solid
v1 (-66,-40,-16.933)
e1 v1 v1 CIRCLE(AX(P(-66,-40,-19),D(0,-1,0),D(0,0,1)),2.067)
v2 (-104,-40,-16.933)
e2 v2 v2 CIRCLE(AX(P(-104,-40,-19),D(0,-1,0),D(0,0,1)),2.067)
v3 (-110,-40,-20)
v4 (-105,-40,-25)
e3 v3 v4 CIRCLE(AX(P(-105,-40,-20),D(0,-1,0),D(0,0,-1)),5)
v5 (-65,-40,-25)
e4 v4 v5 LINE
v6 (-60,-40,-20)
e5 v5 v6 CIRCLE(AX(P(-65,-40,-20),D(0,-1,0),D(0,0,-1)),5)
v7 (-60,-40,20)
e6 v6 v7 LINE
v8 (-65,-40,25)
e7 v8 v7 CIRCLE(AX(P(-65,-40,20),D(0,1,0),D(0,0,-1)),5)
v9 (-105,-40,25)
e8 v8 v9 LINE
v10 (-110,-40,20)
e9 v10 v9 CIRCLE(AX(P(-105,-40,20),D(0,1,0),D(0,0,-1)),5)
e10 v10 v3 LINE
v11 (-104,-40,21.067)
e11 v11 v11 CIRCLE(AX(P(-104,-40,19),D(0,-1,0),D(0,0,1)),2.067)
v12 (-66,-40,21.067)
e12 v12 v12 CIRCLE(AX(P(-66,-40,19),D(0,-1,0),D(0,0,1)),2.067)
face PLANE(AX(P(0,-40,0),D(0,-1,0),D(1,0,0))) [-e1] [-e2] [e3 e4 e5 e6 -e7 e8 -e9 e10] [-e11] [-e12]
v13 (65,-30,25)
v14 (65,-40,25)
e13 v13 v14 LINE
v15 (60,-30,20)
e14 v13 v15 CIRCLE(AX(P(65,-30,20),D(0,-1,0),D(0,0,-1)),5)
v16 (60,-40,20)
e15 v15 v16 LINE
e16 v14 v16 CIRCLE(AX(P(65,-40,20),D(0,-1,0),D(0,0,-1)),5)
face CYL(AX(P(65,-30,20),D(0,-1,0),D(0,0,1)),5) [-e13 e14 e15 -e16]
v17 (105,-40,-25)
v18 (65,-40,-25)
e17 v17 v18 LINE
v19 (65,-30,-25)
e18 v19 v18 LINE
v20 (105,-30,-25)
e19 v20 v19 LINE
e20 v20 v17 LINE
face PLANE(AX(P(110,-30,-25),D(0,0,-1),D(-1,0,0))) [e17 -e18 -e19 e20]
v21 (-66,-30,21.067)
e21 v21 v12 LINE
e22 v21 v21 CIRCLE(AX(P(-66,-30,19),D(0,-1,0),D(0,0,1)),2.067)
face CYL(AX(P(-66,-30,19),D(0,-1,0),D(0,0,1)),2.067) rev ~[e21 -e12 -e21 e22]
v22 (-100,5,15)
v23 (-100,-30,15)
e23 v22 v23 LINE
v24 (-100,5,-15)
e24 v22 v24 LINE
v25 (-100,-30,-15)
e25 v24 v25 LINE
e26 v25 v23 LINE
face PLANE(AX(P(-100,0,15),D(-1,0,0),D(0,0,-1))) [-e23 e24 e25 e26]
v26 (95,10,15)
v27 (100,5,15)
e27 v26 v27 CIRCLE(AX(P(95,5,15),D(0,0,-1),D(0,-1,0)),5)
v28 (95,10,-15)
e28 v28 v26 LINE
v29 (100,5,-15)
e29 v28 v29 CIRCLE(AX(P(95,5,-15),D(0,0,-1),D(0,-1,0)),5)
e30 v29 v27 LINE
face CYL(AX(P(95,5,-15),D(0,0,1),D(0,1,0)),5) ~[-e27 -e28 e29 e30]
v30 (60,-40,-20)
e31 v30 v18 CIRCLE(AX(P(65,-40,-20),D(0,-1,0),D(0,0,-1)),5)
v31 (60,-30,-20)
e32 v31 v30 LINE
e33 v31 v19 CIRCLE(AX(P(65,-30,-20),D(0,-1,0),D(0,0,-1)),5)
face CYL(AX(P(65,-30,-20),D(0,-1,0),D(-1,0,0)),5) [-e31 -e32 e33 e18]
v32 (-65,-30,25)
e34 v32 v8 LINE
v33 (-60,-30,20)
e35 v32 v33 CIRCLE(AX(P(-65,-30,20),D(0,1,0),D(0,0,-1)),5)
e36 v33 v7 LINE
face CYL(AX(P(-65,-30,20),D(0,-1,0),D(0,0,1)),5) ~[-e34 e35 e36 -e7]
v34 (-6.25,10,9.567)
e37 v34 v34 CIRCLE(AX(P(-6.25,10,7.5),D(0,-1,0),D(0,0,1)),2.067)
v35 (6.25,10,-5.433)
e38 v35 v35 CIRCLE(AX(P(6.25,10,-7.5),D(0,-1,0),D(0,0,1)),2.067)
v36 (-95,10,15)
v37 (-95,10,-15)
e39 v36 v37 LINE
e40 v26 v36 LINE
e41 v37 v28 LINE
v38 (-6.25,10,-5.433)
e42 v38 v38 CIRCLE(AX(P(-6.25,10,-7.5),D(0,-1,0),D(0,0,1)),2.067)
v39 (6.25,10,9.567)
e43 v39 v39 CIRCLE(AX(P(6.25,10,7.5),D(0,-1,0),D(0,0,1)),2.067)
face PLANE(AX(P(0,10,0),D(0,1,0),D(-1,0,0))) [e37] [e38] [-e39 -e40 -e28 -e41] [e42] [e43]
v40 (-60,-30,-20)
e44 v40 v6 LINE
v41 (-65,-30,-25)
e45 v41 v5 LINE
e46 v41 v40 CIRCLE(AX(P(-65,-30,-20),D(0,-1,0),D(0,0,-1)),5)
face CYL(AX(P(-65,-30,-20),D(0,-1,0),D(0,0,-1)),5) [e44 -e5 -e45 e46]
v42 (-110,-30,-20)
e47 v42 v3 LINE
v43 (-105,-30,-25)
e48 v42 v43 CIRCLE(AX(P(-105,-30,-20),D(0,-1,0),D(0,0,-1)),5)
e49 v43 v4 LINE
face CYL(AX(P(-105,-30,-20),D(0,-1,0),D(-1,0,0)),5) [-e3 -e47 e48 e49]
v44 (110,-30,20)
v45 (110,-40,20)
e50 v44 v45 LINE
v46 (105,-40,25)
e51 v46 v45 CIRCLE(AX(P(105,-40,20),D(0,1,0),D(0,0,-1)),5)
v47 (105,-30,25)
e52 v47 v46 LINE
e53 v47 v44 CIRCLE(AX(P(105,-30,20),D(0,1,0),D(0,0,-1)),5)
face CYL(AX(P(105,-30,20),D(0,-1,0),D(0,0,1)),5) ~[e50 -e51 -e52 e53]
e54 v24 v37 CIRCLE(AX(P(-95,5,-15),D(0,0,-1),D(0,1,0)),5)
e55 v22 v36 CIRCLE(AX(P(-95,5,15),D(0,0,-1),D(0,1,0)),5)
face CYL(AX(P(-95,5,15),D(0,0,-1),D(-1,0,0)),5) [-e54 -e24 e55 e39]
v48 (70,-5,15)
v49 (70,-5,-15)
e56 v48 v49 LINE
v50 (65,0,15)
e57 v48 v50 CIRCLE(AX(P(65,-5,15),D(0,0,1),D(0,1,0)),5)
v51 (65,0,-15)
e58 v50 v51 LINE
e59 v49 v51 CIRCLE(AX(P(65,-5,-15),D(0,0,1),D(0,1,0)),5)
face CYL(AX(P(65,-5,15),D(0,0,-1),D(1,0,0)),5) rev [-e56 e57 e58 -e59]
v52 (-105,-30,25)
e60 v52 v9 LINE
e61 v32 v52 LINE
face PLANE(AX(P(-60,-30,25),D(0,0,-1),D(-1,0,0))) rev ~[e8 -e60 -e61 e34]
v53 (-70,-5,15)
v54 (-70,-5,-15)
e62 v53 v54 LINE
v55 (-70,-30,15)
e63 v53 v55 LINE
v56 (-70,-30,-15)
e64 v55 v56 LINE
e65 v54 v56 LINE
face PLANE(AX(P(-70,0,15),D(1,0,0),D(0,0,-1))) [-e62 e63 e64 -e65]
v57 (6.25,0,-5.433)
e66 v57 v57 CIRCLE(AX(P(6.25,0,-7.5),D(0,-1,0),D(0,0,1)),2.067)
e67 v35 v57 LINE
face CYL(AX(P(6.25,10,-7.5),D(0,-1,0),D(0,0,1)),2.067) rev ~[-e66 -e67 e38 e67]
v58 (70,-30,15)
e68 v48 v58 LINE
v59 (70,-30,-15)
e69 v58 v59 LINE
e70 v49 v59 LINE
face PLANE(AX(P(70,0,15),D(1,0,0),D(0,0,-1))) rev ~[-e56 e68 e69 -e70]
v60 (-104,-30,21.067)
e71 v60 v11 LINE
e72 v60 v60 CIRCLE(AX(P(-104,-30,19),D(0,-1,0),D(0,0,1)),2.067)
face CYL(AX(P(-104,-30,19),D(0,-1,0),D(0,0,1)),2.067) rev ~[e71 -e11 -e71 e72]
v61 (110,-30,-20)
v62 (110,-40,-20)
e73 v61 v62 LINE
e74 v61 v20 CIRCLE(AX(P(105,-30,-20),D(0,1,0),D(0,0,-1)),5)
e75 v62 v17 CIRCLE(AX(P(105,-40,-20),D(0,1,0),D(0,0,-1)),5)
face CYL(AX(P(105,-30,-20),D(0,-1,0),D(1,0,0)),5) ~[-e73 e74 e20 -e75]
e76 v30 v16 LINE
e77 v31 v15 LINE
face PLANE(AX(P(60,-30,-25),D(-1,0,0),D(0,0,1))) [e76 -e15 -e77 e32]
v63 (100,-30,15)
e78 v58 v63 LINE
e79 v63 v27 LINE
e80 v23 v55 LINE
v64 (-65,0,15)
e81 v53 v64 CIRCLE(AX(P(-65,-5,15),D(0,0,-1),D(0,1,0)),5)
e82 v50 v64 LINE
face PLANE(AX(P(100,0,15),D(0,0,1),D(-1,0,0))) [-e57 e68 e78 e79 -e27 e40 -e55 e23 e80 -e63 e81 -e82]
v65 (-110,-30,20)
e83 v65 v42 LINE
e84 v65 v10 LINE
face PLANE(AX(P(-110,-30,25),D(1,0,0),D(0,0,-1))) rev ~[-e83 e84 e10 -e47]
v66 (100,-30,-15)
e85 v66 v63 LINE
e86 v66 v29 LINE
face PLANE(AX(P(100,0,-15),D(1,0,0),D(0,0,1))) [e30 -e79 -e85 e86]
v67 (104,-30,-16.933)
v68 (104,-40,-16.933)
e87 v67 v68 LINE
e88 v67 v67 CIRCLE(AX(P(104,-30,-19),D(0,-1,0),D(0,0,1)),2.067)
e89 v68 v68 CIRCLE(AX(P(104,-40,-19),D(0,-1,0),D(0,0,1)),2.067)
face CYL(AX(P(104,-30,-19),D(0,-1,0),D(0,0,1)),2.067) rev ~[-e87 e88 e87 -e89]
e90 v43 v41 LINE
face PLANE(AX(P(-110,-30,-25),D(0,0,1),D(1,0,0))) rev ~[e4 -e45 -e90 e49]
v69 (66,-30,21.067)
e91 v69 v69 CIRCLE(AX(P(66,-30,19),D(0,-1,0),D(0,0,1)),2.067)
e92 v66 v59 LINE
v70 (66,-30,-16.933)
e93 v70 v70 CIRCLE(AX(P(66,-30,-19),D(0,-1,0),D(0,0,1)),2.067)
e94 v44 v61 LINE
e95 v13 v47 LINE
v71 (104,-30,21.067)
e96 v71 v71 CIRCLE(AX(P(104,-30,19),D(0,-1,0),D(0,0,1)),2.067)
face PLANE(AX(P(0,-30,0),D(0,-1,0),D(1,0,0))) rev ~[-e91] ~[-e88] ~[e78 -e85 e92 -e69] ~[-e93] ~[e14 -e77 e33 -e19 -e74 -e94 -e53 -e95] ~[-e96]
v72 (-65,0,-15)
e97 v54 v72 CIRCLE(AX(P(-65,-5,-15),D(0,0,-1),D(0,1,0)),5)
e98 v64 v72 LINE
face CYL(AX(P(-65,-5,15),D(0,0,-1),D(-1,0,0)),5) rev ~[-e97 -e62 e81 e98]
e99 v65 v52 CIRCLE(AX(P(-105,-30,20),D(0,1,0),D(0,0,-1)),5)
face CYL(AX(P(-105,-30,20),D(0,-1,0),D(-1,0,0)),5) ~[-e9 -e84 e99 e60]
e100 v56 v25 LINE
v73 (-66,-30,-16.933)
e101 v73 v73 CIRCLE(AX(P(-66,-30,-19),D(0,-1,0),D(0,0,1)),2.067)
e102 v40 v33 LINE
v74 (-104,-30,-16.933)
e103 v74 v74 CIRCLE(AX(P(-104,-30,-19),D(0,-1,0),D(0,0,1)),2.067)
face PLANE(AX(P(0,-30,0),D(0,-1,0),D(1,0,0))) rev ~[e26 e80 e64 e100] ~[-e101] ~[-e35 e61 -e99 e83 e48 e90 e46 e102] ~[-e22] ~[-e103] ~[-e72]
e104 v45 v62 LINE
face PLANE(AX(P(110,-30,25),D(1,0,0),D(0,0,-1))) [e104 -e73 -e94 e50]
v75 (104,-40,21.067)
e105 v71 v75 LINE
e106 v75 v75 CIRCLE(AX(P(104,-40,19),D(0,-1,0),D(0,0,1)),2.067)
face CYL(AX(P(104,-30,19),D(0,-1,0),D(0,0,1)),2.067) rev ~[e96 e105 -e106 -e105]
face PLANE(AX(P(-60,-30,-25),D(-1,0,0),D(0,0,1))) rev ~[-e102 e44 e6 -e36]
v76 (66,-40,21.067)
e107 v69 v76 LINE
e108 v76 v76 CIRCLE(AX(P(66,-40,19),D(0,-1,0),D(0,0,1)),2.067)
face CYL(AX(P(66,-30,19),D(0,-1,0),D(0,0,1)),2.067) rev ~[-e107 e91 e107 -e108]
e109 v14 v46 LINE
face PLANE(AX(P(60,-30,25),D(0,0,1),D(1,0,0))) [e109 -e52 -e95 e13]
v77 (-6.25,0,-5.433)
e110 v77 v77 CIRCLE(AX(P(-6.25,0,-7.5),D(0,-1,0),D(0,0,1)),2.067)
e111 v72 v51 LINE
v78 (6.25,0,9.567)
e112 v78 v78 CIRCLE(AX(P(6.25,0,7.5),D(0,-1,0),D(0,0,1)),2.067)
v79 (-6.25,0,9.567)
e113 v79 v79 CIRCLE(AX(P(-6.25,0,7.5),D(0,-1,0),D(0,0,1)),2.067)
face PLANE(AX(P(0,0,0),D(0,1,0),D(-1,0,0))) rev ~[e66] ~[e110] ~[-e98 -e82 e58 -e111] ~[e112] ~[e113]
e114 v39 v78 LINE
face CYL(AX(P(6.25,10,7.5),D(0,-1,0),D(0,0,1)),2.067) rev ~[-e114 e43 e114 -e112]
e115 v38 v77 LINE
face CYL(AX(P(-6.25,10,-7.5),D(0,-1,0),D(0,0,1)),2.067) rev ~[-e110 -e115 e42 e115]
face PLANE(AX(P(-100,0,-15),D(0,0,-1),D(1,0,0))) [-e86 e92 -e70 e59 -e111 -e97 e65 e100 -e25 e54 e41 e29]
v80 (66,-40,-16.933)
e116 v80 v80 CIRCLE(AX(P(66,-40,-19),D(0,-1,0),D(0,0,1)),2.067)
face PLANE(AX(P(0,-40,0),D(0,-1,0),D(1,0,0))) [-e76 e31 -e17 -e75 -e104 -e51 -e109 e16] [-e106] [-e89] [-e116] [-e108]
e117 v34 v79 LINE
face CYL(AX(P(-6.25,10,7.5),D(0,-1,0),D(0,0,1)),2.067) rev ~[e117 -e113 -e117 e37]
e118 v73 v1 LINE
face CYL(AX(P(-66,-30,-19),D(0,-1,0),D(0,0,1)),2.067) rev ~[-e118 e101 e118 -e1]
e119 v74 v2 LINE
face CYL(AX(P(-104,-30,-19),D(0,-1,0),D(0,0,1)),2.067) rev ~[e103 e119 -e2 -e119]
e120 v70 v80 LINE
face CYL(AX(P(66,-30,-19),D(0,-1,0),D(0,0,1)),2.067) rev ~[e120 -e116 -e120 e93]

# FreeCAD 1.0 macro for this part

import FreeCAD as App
import Part
import Sketcher

V = App.Vector
Q = App.Units.Quantity


def edges_at(feature, points):
    """Names of the edges that pass closest to the given points."""
    edges = feature.Shape.Edges
    near = lambda p: min(range(len(edges)), key=lambda i: edges[i].distToShape(Part.Vertex(*p))[0])
    return sorted({f"Edge{near(p) + 1}" for p in points})

doc = App.newDocument("Part")
body = doc.addObject("PartDesign::Body", "Body")

sketch1 = doc.addObject("Sketcher::SketchObject", "Sketch")
body.addObject(sketch1)
sketch1.AttachmentSupport = (doc.XZ_Plane, [""])
sketch1.MapMode = "FlatFace"
sketch1.addGeometry(Part.LineSegment(V(-100, 15, 0), V(100, 15, 0)), False)
sketch1.addGeometry(Part.LineSegment(V(100, 15, 0), V(100, -15, 0)), False)
sketch1.addGeometry(Part.LineSegment(V(100, -15, 0), V(-100, -15, 0)), False)
sketch1.addGeometry(Part.LineSegment(V(-100, -15, 0), V(-100, 15, 0)), False)
sketch1.addConstraint(Sketcher.Constraint("Coincident", 0, 2, 1, 1))
sketch1.addConstraint(Sketcher.Constraint("Coincident", 1, 2, 2, 1))
sketch1.addConstraint(Sketcher.Constraint("Coincident", 2, 2, 3, 1))
sketch1.addConstraint(Sketcher.Constraint("Coincident", 3, 2, 0, 1))
sketch1.addConstraint(Sketcher.Constraint("Horizontal", 0))
sketch1.addConstraint(Sketcher.Constraint("Vertical", 1))
sketch1.addConstraint(Sketcher.Constraint("Horizontal", 2))
sketch1.addConstraint(Sketcher.Constraint("Vertical", 3))
sketch1.addConstraint(Sketcher.Constraint("Symmetric", 0, 2, 2, 2, -1, 1))
sketch1.addConstraint(Sketcher.Constraint("DistanceX", 0, 1, 0, 2, Q("200 mm")))
sketch1.addConstraint(Sketcher.Constraint("DistanceY", 1, 2, 1, 1, Q("30 mm")))
pad1 = doc.addObject("PartDesign::Pad", "Pad")
body.addObject(pad1)
pad1.Profile = sketch1
pad1.Length = 10
pad1.Reversed = True

sketch2 = doc.addObject("Sketcher::SketchObject", "Sketch001")
body.addObject(sketch2)
sketch2.AttachmentSupport = (doc.XZ_Plane, [""])
sketch2.MapMode = "FlatFace"
sketch2.AttachmentOffset = App.Placement(V(0, 0, -10), App.Rotation())
sketch2.addGeometry(Part.Circle(V(6.2, -7.5, 0), V(0, 0, 1), 2.1), False)
sketch2.addGeometry(Part.Circle(V(6.2, 7.5, 0), V(0, 0, 1), 2.1), False)
sketch2.addGeometry(Part.Circle(V(-6.2, 7.5, 0), V(0, 0, 1), 2.1), False)
sketch2.addGeometry(Part.Circle(V(-6.2, -7.5, 0), V(0, 0, 1), 2.1), False)
sketch2.addConstraint(Sketcher.Constraint("Equal", 0, 1))
sketch2.addConstraint(Sketcher.Constraint("Equal", 1, 2))
sketch2.addConstraint(Sketcher.Constraint("Equal", 2, 3))
sketch2.addConstraint(Sketcher.Constraint("Symmetric", 0, 3, 2, 3, -1, 1))
sketch2.addConstraint(Sketcher.Constraint("Symmetric", 1, 3, 3, 3, -1, 1))
sketch2.addConstraint(Sketcher.Constraint("Symmetric", 1, 3, 2, 3, -2))
sketch2.addConstraint(Sketcher.Constraint("Diameter", 0, Q("4.134 mm")))
sketch2.addConstraint(Sketcher.Constraint("DistanceY", 0, 3, 1, 3, Q("15 mm")))
sketch2.addConstraint(Sketcher.Constraint("DistanceX", 2, 3, 1, 3, Q("12.5 mm")))
doc.recompute()
hole = doc.addObject("PartDesign::Hole", "Hole")
body.addObject(hole)
hole.Profile = sketch2
hole.ThreadType = "None"
hole.Diameter = 4.134
hole.DepthType = "Dimension"
hole.Depth = 14.2
hole.DrillPoint = "Flat"
hole.Reversed = True

sketch3 = doc.addObject("Sketcher::SketchObject", "Sketch002")
body.addObject(sketch3)
sketch3.AttachmentSupport = (doc.XZ_Plane, [""])
sketch3.MapMode = "FlatFace"
sketch3.addGeometry(Part.LineSegment(V(-70, 15, 0), V(-100, 15, 0)), False)
sketch3.addGeometry(Part.LineSegment(V(-100, 15, 0), V(-100, -15, 0)), False)
sketch3.addGeometry(Part.LineSegment(V(-100, -15, 0), V(-70, -15, 0)), False)
sketch3.addGeometry(Part.LineSegment(V(-70, -15, 0), V(-70, 15, 0)), False)
sketch3.addGeometry(Part.LineSegment(V(100, 15, 0), V(70, 15, 0)), False)
sketch3.addGeometry(Part.LineSegment(V(70, 15, 0), V(70, -15, 0)), False)
sketch3.addGeometry(Part.LineSegment(V(70, -15, 0), V(100, -15, 0)), False)
sketch3.addGeometry(Part.LineSegment(V(100, -15, 0), V(100, 15, 0)), False)
sketch3.addConstraint(Sketcher.Constraint("Coincident", 0, 2, 1, 1))
sketch3.addConstraint(Sketcher.Constraint("Coincident", 1, 2, 2, 1))
sketch3.addConstraint(Sketcher.Constraint("Coincident", 2, 2, 3, 1))
sketch3.addConstraint(Sketcher.Constraint("Coincident", 3, 2, 0, 1))
sketch3.addConstraint(Sketcher.Constraint("Coincident", 4, 2, 5, 1))
sketch3.addConstraint(Sketcher.Constraint("Coincident", 5, 2, 6, 1))
sketch3.addConstraint(Sketcher.Constraint("Coincident", 6, 2, 7, 1))
sketch3.addConstraint(Sketcher.Constraint("Coincident", 7, 2, 4, 1))
sketch3.addConstraint(Sketcher.Constraint("Horizontal", 0))
sketch3.addConstraint(Sketcher.Constraint("Vertical", 1))
sketch3.addConstraint(Sketcher.Constraint("Horizontal", 2))
sketch3.addConstraint(Sketcher.Constraint("Vertical", 3))
sketch3.addConstraint(Sketcher.Constraint("Horizontal", 4))
sketch3.addConstraint(Sketcher.Constraint("Vertical", 5))
sketch3.addConstraint(Sketcher.Constraint("Horizontal", 6))
sketch3.addConstraint(Sketcher.Constraint("Vertical", 7))
sketch3.addConstraint(Sketcher.Constraint("Symmetric", 2, 2, 4, 2, -1, 1))
sketch3.addConstraint(Sketcher.Constraint("Symmetric", 0, 2, 6, 2, -1, 1))
sketch3.addConstraint(Sketcher.Constraint("Horizontal", 3, 2, 4, 2))
sketch3.addConstraint(Sketcher.Constraint("Equal", 6, 1))
sketch3.addConstraint(Sketcher.Constraint("DistanceX", 0, 2, 0, 1, Q("30 mm")))
sketch3.addConstraint(Sketcher.Constraint("DistanceX", 0, 2, -1, 1, Q("100 mm")))
pad2 = doc.addObject("PartDesign::Pad", "Pad001")
body.addObject(pad2)
pad2.Profile = sketch3
pad2.Length = 30

sketch4 = doc.addObject("Sketcher::SketchObject", "Sketch003")
body.addObject(sketch4)
sketch4.AttachmentSupport = (doc.XZ_Plane, [""])
sketch4.MapMode = "FlatFace"
sketch4.AttachmentOffset = App.Placement(V(0, 0, 30), App.Rotation())
sketch4.addGeometry(Part.LineSegment(V(-110, 25, 0), V(-110, -25, 0)), False)
sketch4.addGeometry(Part.LineSegment(V(-110, -25, 0), V(-60, -25, 0)), False)
sketch4.addGeometry(Part.LineSegment(V(-60, -25, 0), V(-60, 25, 0)), False)
sketch4.addGeometry(Part.LineSegment(V(-60, 25, 0), V(-110, 25, 0)), False)
sketch4.addGeometry(Part.LineSegment(V(110, 25, 0), V(60, 25, 0)), False)
sketch4.addGeometry(Part.LineSegment(V(60, 25, 0), V(60, -25, 0)), False)
sketch4.addGeometry(Part.LineSegment(V(60, -25, 0), V(110, -25, 0)), False)
sketch4.addGeometry(Part.LineSegment(V(110, -25, 0), V(110, 25, 0)), False)
sketch4.addConstraint(Sketcher.Constraint("Coincident", 0, 2, 1, 1))
sketch4.addConstraint(Sketcher.Constraint("Coincident", 1, 2, 2, 1))
sketch4.addConstraint(Sketcher.Constraint("Coincident", 2, 2, 3, 1))
sketch4.addConstraint(Sketcher.Constraint("Coincident", 3, 2, 0, 1))
sketch4.addConstraint(Sketcher.Constraint("Coincident", 4, 2, 5, 1))
sketch4.addConstraint(Sketcher.Constraint("Coincident", 5, 2, 6, 1))
sketch4.addConstraint(Sketcher.Constraint("Coincident", 6, 2, 7, 1))
sketch4.addConstraint(Sketcher.Constraint("Coincident", 7, 2, 4, 1))
sketch4.addConstraint(Sketcher.Constraint("Vertical", 0))
sketch4.addConstraint(Sketcher.Constraint("Horizontal", 1))
sketch4.addConstraint(Sketcher.Constraint("Vertical", 2))
sketch4.addConstraint(Sketcher.Constraint("Horizontal", 3))
sketch4.addConstraint(Sketcher.Constraint("Horizontal", 4))
sketch4.addConstraint(Sketcher.Constraint("Vertical", 5))
sketch4.addConstraint(Sketcher.Constraint("Horizontal", 6))
sketch4.addConstraint(Sketcher.Constraint("Vertical", 7))
sketch4.addConstraint(Sketcher.Constraint("Symmetric", 1, 2, 4, 2, -1, 1))
sketch4.addConstraint(Sketcher.Constraint("Symmetric", 3, 2, 6, 2, -1, 1))
sketch4.addConstraint(Sketcher.Constraint("Horizontal", 3, 2, 4, 2))
sketch4.addConstraint(Sketcher.Constraint("Equal", 6, 0))
sketch4.addConstraint(Sketcher.Constraint("DistanceX", 1, 1, 1, 2, Q("50 mm")))
sketch4.addConstraint(Sketcher.Constraint("DistanceX", 0, 2, -1, 1, Q("110 mm")))
pad3 = doc.addObject("PartDesign::Pad", "Pad002")
body.addObject(pad3)
pad3.Profile = sketch4
pad3.Length = 10
doc.recompute()

fillet = doc.addObject("PartDesign::Fillet", "Fillet")
body.addObject(fillet)
fillet.Base = (pad3, edges_at(pad3, [
    (-110, -35, 25),
    (-60, -35, 25),
    (-110, -35, -25),
    (-60, -35, -25),
    (60, -35, -25),
    (110, -35, -25),
    (110, -35, 25),
    (60, -35, 25),
]))
fillet.Radius = 5

sketch5 = doc.addObject("Sketcher::SketchObject", "Sketch004")
body.addObject(sketch5)
sketch5.AttachmentSupport = (doc.XZ_Plane, [""])
sketch5.MapMode = "FlatFace"
sketch5.AttachmentOffset = App.Placement(V(0, 0, 30), App.Rotation())
sketch5.addGeometry(Part.Circle(V(-66, 19, 0), V(0, 0, 1), 2.1), False)
sketch5.addGeometry(Part.Circle(V(104, 19, 0), V(0, 0, 1), 2.1), False)
sketch5.addGeometry(Part.Circle(V(104, -19, 0), V(0, 0, 1), 2.1), False)
sketch5.addGeometry(Part.Circle(V(66, -19, 0), V(0, 0, 1), 2.1), False)
sketch5.addGeometry(Part.Circle(V(66, 19, 0), V(0, 0, 1), 2.1), False)
sketch5.addGeometry(Part.Circle(V(-104, 19, 0), V(0, 0, 1), 2.1), False)
sketch5.addGeometry(Part.Circle(V(-66, -19, 0), V(0, 0, 1), 2.1), False)
sketch5.addGeometry(Part.Circle(V(-104, -19, 0), V(0, 0, 1), 2.1), False)
sketch5.addConstraint(Sketcher.Constraint("Equal", 0, 1))
sketch5.addConstraint(Sketcher.Constraint("Equal", 1, 2))
sketch5.addConstraint(Sketcher.Constraint("Equal", 2, 3))
sketch5.addConstraint(Sketcher.Constraint("Equal", 3, 4))
sketch5.addConstraint(Sketcher.Constraint("Equal", 4, 5))
sketch5.addConstraint(Sketcher.Constraint("Equal", 5, 6))
sketch5.addConstraint(Sketcher.Constraint("Equal", 6, 7))
sketch5.addConstraint(Sketcher.Constraint("Symmetric", 0, 3, 3, 3, -1, 1))
sketch5.addConstraint(Sketcher.Constraint("Symmetric", 2, 3, 5, 3, -1, 1))
sketch5.addConstraint(Sketcher.Constraint("Symmetric", 4, 3, 6, 3, -1, 1))
sketch5.addConstraint(Sketcher.Constraint("Symmetric", 1, 3, 7, 3, -1, 1))
sketch5.addConstraint(Sketcher.Constraint("Symmetric", 0, 3, 4, 3, -2))
sketch5.addConstraint(Sketcher.Constraint("Symmetric", 1, 3, 5, 3, -2))
sketch5.addConstraint(Sketcher.Constraint("Horizontal", 0, 3, 1, 3))
sketch5.addConstraint(Sketcher.Constraint("Diameter", 0, Q("4.134 mm")))
sketch5.addConstraint(Sketcher.Constraint("DistanceX", 0, 3, -1, 1, Q("66 mm")))
sketch5.addConstraint(Sketcher.Constraint("DistanceY", -1, 1, 0, 3, Q("19 mm")))
sketch5.addConstraint(Sketcher.Constraint("DistanceX", -1, 1, 1, 3, Q("104 mm")))
doc.recompute()
hole2 = doc.addObject("PartDesign::Hole", "Hole001")
body.addObject(hole2)
hole2.Profile = sketch5
hole2.ThreadType = "None"
hole2.Diameter = 4.134
hole2.DepthType = "Dimension"
hole2.Depth = 14.2
hole2.DrillPoint = "Flat"
hole2.Reversed = True
doc.recompute()

fillet2 = doc.addObject("PartDesign::Fillet", "Fillet001")
body.addObject(fillet2)
fillet2.Base = (hole2, edges_at(hole2, [
    (100, 10, 0),
    (-100, 10, 0),
    (70, 0, 0),
    (-70, 0, 0),
]))
fillet2.Radius = 5

doc.recompute()
